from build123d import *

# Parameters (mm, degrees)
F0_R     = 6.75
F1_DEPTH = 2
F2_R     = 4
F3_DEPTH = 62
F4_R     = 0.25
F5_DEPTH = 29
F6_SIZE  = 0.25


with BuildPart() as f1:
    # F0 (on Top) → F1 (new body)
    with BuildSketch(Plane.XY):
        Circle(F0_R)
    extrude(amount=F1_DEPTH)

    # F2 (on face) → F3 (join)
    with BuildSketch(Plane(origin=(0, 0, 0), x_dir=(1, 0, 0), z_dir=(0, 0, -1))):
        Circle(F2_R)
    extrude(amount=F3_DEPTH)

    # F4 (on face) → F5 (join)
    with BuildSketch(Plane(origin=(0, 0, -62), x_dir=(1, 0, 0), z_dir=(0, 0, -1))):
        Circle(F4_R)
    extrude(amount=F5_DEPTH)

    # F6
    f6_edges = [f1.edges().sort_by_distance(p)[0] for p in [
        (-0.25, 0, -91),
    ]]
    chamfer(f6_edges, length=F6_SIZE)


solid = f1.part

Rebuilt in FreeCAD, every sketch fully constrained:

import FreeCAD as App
import Part
import Sketcher
from FreeCAD import Vector


def edges_at(feature, points):
    """Names of the edges that pass closest to the given points."""
    edges = feature.Shape.Edges
    near = lambda p: min(range(len(edges)), key=lambda i: edges[i].distToShape(Part.Vertex(*p))[0])
    return sorted({f"Edge{near(p) + 1}" for p in points})

doc = App.newDocument("Part")
body = doc.addObject("PartDesign::Body", "Body")

sketch1 = body.newObject("Sketcher::SketchObject", "Sketch")
sketch1.AttachmentSupport = (doc.getObject("XY_Plane"), [""])
sketch1.MapMode = "FlatFace"
sketch1.addGeometry(Part.Circle(Vector(0, 0, 0), Vector(0, 0, 1), 6.75), False)
sketch1.addConstraint([
    Sketcher.Constraint("Coincident", 0, 3, -1, 1),
    Sketcher.Constraint("Diameter", 0, 13.5),
])
pad1 = body.newObject("PartDesign::Pad", "Pad")
pad1.Profile = sketch1
pad1.Length = 2

sketch2 = body.newObject("Sketcher::SketchObject", "Sketch001")
sketch2.AttachmentSupport = (doc.getObject("XY_Plane"), [""])
sketch2.MapMode = "FlatFace"
sketch2.addGeometry(Part.Circle(Vector(0, 0, 0), Vector(0, 0, 1), 4), False)
sketch2.addConstraint([
    Sketcher.Constraint("Coincident", 0, 3, -1, 1),
    Sketcher.Constraint("Diameter", 0, 8.0),
])
pad2 = body.newObject("PartDesign::Pad", "Pad001")
pad2.Profile = sketch2
pad2.Length = 62
pad2.Reversed = True

sketch3 = body.newObject("Sketcher::SketchObject", "Sketch002")
sketch3.AttachmentSupport = (doc.getObject("XY_Plane"), [""])
sketch3.MapMode = "FlatFace"
sketch3.AttachmentOffset = App.Placement(Vector(0, 0, -62), App.Rotation())
sketch3.addGeometry(Part.Circle(Vector(0, 0, 0), Vector(0, 0, 1), 0.25), False)
sketch3.addConstraint([
    Sketcher.Constraint("Coincident", 0, 3, -1, 1),
    Sketcher.Constraint("Diameter", 0, 0.5),
])
pad3 = body.newObject("PartDesign::Pad", "Pad002")
pad3.Profile = sketch3
pad3.Length = 29
pad3.Reversed = True
doc.recompute()

chamfer = body.newObject("PartDesign::Chamfer", "Chamfer")
chamfer.Base = (pad3, edges_at(pad3, [(-0.25, 0, -91)]))
chamfer.Size = 0.25

doc.recompute()
